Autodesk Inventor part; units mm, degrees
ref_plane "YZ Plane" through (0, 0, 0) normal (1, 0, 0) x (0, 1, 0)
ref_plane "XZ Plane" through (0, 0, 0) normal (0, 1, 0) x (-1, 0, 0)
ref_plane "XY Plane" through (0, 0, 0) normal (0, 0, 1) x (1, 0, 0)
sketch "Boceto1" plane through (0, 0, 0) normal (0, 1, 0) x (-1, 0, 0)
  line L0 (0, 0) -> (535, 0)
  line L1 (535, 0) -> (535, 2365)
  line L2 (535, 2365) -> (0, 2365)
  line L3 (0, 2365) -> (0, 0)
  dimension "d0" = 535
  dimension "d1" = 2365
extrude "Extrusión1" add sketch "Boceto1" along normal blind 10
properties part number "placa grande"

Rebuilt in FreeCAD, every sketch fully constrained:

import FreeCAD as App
import Part
import Sketcher
Q = App.Units.Quantity


def add_polygon(sketch, points):
    """Adds a closed chain of lines whose ends are joined by coincident constraints."""
    first, n = sketch.GeometryCount, len(points)
    for a, b in zip(points, points[1:] + points[:1]):
        sketch.addGeometry(Part.LineSegment(App.Vector(*a, 0), App.Vector(*b, 0)), False)
    for i in range(n):
        sketch.addConstraint(Sketcher.Constraint("Coincident", first + i, 2, first + (i + 1) % n, 1))

doc = App.newDocument("Part")
body = doc.addObject("PartDesign::Body", "Body")

# Sketch on XZ plane
sketch1 = body.newObject("Sketcher::SketchObject", "Sketch")
sketch1.AttachmentSupport = (doc.getObject("XZ_Plane"), [""])
sketch1.MapMode = "FlatFace"
add_polygon(sketch1, [(0, 2365), (0, 0), (-535, 0), (-535, 2365)])  # lines 0-3
sketch1.addConstraint(Sketcher.Constraint("Vertical", 0))
sketch1.addConstraint(Sketcher.Constraint("Horizontal", 1))
sketch1.addConstraint(Sketcher.Constraint("Vertical", 2))
sketch1.addConstraint(Sketcher.Constraint("Horizontal", 3))
sketch1.addConstraint(Sketcher.Constraint("Coincident", 0, 2, -1, 1))
sketch1.addConstraint(Sketcher.Constraint("DistanceX", 1, 2, 1, 1, Q("535 mm")))
sketch1.addConstraint(Sketcher.Constraint("DistanceY", 0, 2, 0, 1, Q("2365 mm")))
pad1 = body.newObject("PartDesign::Pad", "Pad")
pad1.Profile = sketch1
pad1.Length = 10
pad1.Reversed = True

doc.recompute()
